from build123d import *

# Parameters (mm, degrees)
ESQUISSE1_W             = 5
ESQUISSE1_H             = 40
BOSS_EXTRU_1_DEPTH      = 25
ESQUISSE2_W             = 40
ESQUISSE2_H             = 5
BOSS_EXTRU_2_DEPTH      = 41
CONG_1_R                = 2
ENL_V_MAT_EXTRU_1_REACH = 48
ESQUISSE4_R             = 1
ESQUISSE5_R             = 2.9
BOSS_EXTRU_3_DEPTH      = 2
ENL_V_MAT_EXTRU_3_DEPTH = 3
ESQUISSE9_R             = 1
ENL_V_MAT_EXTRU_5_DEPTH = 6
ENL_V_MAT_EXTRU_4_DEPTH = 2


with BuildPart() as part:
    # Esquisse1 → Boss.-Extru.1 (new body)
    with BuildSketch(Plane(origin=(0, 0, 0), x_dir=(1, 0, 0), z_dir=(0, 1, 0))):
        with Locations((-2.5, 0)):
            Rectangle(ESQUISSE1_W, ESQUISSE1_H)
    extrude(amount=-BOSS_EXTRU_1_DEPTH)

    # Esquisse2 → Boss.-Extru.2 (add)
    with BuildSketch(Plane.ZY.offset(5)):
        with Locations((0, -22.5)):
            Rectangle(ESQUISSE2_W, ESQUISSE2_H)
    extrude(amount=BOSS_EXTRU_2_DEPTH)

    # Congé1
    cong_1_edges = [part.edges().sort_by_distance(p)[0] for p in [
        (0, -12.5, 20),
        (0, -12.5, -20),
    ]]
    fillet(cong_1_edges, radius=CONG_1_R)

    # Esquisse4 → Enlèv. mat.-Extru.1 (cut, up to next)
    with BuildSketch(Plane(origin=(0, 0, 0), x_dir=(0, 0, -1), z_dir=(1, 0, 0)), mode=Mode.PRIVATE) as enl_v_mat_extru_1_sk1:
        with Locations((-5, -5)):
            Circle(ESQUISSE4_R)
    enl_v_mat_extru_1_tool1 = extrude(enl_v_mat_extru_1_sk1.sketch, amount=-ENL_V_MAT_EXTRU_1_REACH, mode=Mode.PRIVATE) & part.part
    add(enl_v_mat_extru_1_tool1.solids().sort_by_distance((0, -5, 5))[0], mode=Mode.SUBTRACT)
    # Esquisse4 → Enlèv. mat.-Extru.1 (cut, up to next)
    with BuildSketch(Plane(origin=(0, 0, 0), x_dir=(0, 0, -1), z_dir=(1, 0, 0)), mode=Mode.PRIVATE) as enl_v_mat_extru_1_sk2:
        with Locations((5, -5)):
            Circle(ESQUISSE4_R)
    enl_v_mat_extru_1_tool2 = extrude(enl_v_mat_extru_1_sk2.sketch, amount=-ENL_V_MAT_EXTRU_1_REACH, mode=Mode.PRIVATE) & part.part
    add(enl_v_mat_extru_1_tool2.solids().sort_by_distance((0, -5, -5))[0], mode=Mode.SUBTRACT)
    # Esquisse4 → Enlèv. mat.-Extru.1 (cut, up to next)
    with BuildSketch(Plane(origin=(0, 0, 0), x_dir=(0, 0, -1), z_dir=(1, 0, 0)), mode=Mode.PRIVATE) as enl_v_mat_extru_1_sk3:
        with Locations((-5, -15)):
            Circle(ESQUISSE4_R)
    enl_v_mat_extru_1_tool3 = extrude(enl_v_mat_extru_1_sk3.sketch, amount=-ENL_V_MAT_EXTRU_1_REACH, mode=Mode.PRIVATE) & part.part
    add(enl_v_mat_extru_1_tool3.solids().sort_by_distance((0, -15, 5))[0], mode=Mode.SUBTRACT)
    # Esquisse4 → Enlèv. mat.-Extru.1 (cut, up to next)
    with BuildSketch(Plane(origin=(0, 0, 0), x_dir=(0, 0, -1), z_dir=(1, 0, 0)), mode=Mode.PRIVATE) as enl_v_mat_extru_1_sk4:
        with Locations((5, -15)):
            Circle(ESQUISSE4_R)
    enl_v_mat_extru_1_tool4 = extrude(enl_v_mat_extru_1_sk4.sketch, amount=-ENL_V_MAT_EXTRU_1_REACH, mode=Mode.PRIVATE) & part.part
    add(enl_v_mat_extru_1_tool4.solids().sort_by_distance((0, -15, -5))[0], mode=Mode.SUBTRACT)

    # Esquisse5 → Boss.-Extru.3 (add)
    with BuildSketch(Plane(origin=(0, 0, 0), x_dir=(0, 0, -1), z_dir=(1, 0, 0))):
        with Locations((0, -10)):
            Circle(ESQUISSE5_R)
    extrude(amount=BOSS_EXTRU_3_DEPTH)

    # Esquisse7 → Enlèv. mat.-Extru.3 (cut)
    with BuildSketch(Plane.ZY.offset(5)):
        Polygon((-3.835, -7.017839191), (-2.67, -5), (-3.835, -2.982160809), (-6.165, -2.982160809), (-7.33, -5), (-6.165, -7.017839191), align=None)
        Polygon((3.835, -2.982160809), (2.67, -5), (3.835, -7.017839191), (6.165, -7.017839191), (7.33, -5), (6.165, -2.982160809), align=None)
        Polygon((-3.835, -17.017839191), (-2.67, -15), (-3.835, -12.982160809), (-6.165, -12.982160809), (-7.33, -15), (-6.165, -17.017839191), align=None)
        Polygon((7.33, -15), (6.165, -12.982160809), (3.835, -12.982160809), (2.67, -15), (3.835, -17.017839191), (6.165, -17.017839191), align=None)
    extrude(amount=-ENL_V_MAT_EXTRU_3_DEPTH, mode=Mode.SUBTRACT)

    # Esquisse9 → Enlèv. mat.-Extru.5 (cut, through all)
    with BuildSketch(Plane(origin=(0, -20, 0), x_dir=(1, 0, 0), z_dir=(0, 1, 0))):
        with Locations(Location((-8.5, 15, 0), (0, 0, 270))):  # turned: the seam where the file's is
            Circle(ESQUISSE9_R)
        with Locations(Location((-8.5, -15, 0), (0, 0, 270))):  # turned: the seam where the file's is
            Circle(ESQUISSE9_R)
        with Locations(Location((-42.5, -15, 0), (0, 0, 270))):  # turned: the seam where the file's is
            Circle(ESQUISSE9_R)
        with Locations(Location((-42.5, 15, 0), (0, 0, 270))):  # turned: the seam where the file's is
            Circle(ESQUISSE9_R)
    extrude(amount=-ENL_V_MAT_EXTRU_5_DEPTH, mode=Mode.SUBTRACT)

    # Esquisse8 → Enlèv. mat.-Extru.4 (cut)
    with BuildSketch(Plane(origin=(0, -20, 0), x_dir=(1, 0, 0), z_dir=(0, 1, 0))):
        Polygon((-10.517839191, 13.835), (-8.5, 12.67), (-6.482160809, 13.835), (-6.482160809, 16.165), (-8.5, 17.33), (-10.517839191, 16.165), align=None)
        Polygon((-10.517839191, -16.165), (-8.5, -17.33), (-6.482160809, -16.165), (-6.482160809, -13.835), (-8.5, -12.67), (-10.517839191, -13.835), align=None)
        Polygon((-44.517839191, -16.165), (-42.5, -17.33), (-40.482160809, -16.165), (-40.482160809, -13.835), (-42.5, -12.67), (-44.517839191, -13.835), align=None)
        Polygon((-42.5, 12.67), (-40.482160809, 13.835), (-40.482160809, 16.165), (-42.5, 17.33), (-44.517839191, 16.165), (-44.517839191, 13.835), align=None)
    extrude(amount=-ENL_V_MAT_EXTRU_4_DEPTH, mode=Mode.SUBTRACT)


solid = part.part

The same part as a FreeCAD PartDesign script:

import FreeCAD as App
import Part
import Sketcher
Q = App.Units.Quantity


def edges_at(feature, points):
    """Names of the edges that pass closest to the given points."""
    edges = feature.Shape.Edges
    near = lambda p: min(range(len(edges)), key=lambda i: edges[i].distToShape(Part.Vertex(*p))[0])
    return sorted({f"Edge{near(p) + 1}" for p in points})

doc = App.newDocument("Part")
body = doc.addObject("PartDesign::Body", "Body")

sketch1 = body.newObject("Sketcher::SketchObject", "Sketch")
sketch1.AttachmentSupport = (doc.getObject("XZ_Plane"), [""])
sketch1.MapMode = "FlatFace"
sketch1.addGeometry([
    Part.LineSegment(App.Vector(-5, -20, 0), App.Vector(-5, 20, 0)),
    Part.LineSegment(App.Vector(-5, 20, 0), App.Vector(0, 20, 0)),
    Part.LineSegment(App.Vector(0, 20, 0), App.Vector(0, -20, 0)),
    Part.LineSegment(App.Vector(0, -20, 0), App.Vector(-5, -20, 0)),
], False)
sketch1.addConstraint([
    Sketcher.Constraint("Coincident", 0, 2, 1, 1),
    Sketcher.Constraint("Coincident", 1, 2, 2, 1),
    Sketcher.Constraint("Coincident", 2, 2, 3, 1),
    Sketcher.Constraint("Coincident", 3, 2, 0, 1),
    Sketcher.Constraint("Vertical", 0),
    Sketcher.Constraint("Horizontal", 1),
    Sketcher.Constraint("Vertical", 2),
    Sketcher.Constraint("Horizontal", 3),
    Sketcher.Constraint("Symmetric", 1, 2, 2, 2, -1, 1),
    Sketcher.Constraint("DistanceX", 1, 1, 1, 2, 5.0),
    Sketcher.Constraint("DistanceY", 0, 1, 0, 2, 40.0),
])
pad1 = body.newObject("PartDesign::Pad", "Pad")
pad1.Profile = sketch1
pad1.Length = 25

sketch2 = body.newObject("Sketcher::SketchObject", "Sketch001")
sketch2.AttachmentSupport = (doc.getObject("YZ_Plane"), [""])
sketch2.MapMode = "FlatFace"
sketch2.AttachmentOffset = App.Placement(App.Vector(0, 0, -5), App.Rotation())
sketch2.addGeometry([
    Part.LineSegment(App.Vector(-20, -20, 0), App.Vector(-25, -20, 0)),
    Part.LineSegment(App.Vector(-25, -20, 0), App.Vector(-25, 20, 0)),
    Part.LineSegment(App.Vector(-25, 20, 0), App.Vector(-20, 20, 0)),
    Part.LineSegment(App.Vector(-20, 20, 0), App.Vector(-20, -20, 0)),
], False)
sketch2.addConstraint([
    Sketcher.Constraint("Coincident", 0, 2, 1, 1),
    Sketcher.Constraint("Coincident", 1, 2, 2, 1),
    Sketcher.Constraint("Coincident", 2, 2, 3, 1),
    Sketcher.Constraint("Coincident", 3, 2, 0, 1),
    Sketcher.Constraint("Horizontal", 0),
    Sketcher.Constraint("Vertical", 1),
    Sketcher.Constraint("Horizontal", 2),
    Sketcher.Constraint("Vertical", 3),
    Sketcher.Constraint("DistanceX", 0, 2, 0, 1, 5.0),
    Sketcher.Constraint("DistanceY", 1, 1, 1, 2, 40.0),
    Sketcher.Constraint("DistanceX", 0, 2, -1, 1, 25.0),
    Sketcher.Constraint("DistanceY", 0, 2, -1, 1, 20.0),
])
pad2 = body.newObject("PartDesign::Pad", "Pad001")
pad2.Profile = sketch2
pad2.Length = 41
pad2.Reversed = True
doc.recompute()

fillet = body.newObject("PartDesign::Fillet", "Fillet")
fillet.Base = (pad2, edges_at(pad2, [(0, -12.5, 20), (0, -12.5, -20)]))
fillet.Radius = 2

sketch3 = body.newObject("Sketcher::SketchObject", "Sketch002")
sketch3.AttachmentSupport = (doc.getObject("YZ_Plane"), [""])
sketch3.MapMode = "FlatFace"
sketch3.addGeometry(Part.Circle(App.Vector(-5, 5, 0), App.Vector(0, 0, 1), 1), False)
sketch3.addConstraint([
    Sketcher.Constraint("Diameter", 0, 2.0),
    Sketcher.Constraint("DistanceX", 0, 3, -1, 1, 5.0),
    Sketcher.Constraint("DistanceY", -1, 1, 0, 3, 5.0),
])
pocket1 = body.newObject("PartDesign::Pocket", "Pocket")
pocket1.Profile = sketch3
pocket1.Type = "UpToFirst"

sketch4 = body.newObject("Sketcher::SketchObject", "Sketch003")
sketch4.AttachmentSupport = (doc.getObject("YZ_Plane"), [""])
sketch4.MapMode = "FlatFace"
sketch4.addGeometry(Part.Circle(App.Vector(-5, -5, 0), App.Vector(0, 0, 1), 1), False)
sketch4.addConstraint([
    Sketcher.Constraint("Diameter", 0, 2.0),
    Sketcher.Constraint("DistanceX", 0, 3, -1, 1, 5.0),
    Sketcher.Constraint("DistanceY", 0, 3, -1, 1, 5.0),
])
pocket2 = body.newObject("PartDesign::Pocket", "Pocket001")
pocket2.Profile = sketch4
pocket2.Type = "UpToFirst"

sketch5 = body.newObject("Sketcher::SketchObject", "Sketch004")
sketch5.AttachmentSupport = (doc.getObject("YZ_Plane"), [""])
sketch5.MapMode = "FlatFace"
sketch5.addGeometry(Part.Circle(App.Vector(-15, 5, 0), App.Vector(0, 0, 1), 1), False)
sketch5.addConstraint([
    Sketcher.Constraint("Diameter", 0, 2.0),
    Sketcher.Constraint("DistanceX", 0, 3, -1, 1, 15.0),
    Sketcher.Constraint("DistanceY", -1, 1, 0, 3, 5.0),
])
pocket3 = body.newObject("PartDesign::Pocket", "Pocket002")
pocket3.Profile = sketch5
pocket3.Type = "UpToFirst"

sketch6 = body.newObject("Sketcher::SketchObject", "Sketch005")
sketch6.AttachmentSupport = (doc.getObject("YZ_Plane"), [""])
sketch6.MapMode = "FlatFace"
sketch6.addGeometry(Part.Circle(App.Vector(-15, -5, 0), App.Vector(0, 0, 1), 1), False)
sketch6.addConstraint([
    Sketcher.Constraint("Diameter", 0, 2.0),
    Sketcher.Constraint("DistanceX", 0, 3, -1, 1, 15.0),
    Sketcher.Constraint("DistanceY", 0, 3, -1, 1, 5.0),
])
pocket4 = body.newObject("PartDesign::Pocket", "Pocket003")
pocket4.Profile = sketch6
pocket4.Type = "UpToFirst"

sketch7 = body.newObject("Sketcher::SketchObject", "Sketch006")
sketch7.AttachmentSupport = (doc.getObject("YZ_Plane"), [""])
sketch7.MapMode = "FlatFace"
sketch7.addGeometry(Part.Circle(App.Vector(-10, 0, 0), App.Vector(0, 0, 1), 2.9), False)
sketch7.addConstraint([
    Sketcher.Constraint("PointOnObject", 0, 3, -1),
    Sketcher.Constraint("Diameter", 0, 5.8),
    Sketcher.Constraint("DistanceX", 0, 3, -1, 1, 10.0),
])
pad3 = body.newObject("PartDesign::Pad", "Pad002")
pad3.Profile = sketch7
pad3.Length = 2

sketch8 = body.newObject("Sketcher::SketchObject", "Sketch007")
sketch8.AttachmentSupport = (doc.getObject("YZ_Plane"), [""])
sketch8.MapMode = "FlatFace"
sketch8.AttachmentOffset = App.Placement(App.Vector(0, 0, -5), App.Rotation())
sketch8.addGeometry([
    Part.LineSegment(App.Vector(-7, -3.8, 0), App.Vector(-5, -2.7, 0)),
    Part.LineSegment(App.Vector(-5, -2.7, 0), App.Vector(-3, -3.8, 0)),
    Part.LineSegment(App.Vector(-3, -3.8, 0), App.Vector(-3, -6.2, 0)),
    Part.LineSegment(App.Vector(-3, -6.2, 0), App.Vector(-5, -7.3, 0)),
    Part.LineSegment(App.Vector(-5, -7.3, 0), App.Vector(-7, -6.2, 0)),
    Part.LineSegment(App.Vector(-7, -6.2, 0), App.Vector(-7, -3.8, 0)),
    Part.LineSegment(App.Vector(-3, 3.8, 0), App.Vector(-5, 2.7, 0)),
    Part.LineSegment(App.Vector(-5, 2.7, 0), App.Vector(-7, 3.8, 0)),
    Part.LineSegment(App.Vector(-7, 3.8, 0), App.Vector(-7, 6.2, 0)),
    Part.LineSegment(App.Vector(-7, 6.2, 0), App.Vector(-5, 7.3, 0)),
    Part.LineSegment(App.Vector(-5, 7.3, 0), App.Vector(-3, 6.2, 0)),
    Part.LineSegment(App.Vector(-3, 6.2, 0), App.Vector(-3, 3.8, 0)),
    Part.LineSegment(App.Vector(-17, -3.8, 0), App.Vector(-15, -2.7, 0)),
    Part.LineSegment(App.Vector(-15, -2.7, 0), App.Vector(-13, -3.8, 0)),
    Part.LineSegment(App.Vector(-13, -3.8, 0), App.Vector(-13, -6.2, 0)),
    Part.LineSegment(App.Vector(-13, -6.2, 0), App.Vector(-15, -7.3, 0)),
    Part.LineSegment(App.Vector(-15, -7.3, 0), App.Vector(-17, -6.2, 0)),
    Part.LineSegment(App.Vector(-17, -6.2, 0), App.Vector(-17, -3.8, 0)),
    Part.LineSegment(App.Vector(-15, 7.3, 0), App.Vector(-13, 6.2, 0)),
    Part.LineSegment(App.Vector(-13, 6.2, 0), App.Vector(-13, 3.8, 0)),
    Part.LineSegment(App.Vector(-13, 3.8, 0), App.Vector(-15, 2.7, 0)),
    Part.LineSegment(App.Vector(-15, 2.7, 0), App.Vector(-17, 3.8, 0)),
    Part.LineSegment(App.Vector(-17, 3.8, 0), App.Vector(-17, 6.2, 0)),
    Part.LineSegment(App.Vector(-17, 6.2, 0), App.Vector(-15, 7.3, 0)),
], False)
sketch8.addConstraint([
    Sketcher.Constraint("Coincident", 0, 2, 1, 1),
    Sketcher.Constraint("Coincident", 1, 2, 2, 1),
    Sketcher.Constraint("Coincident", 2, 2, 3, 1),
    Sketcher.Constraint("Coincident", 3, 2, 4, 1),
    Sketcher.Constraint("Coincident", 4, 2, 5, 1),
    Sketcher.Constraint("Coincident", 5, 2, 0, 1),
    Sketcher.Constraint("Coincident", 6, 2, 7, 1),
    Sketcher.Constraint("Coincident", 7, 2, 8, 1),
    Sketcher.Constraint("Coincident", 8, 2, 9, 1),
    Sketcher.Constraint("Coincident", 9, 2, 10, 1),
    Sketcher.Constraint("Coincident", 10, 2, 11, 1),
    Sketcher.Constraint("Coincident", 11, 2, 6, 1),
    Sketcher.Constraint("Coincident", 12, 2, 13, 1),
    Sketcher.Constraint("Coincident", 13, 2, 14, 1),
    Sketcher.Constraint("Coincident", 14, 2, 15, 1),
    Sketcher.Constraint("Coincident", 15, 2, 16, 1),
    Sketcher.Constraint("Coincident", 16, 2, 17, 1),
    Sketcher.Constraint("Coincident", 17, 2, 12, 1),
    Sketcher.Constraint("Coincident", 18, 2, 19, 1),
    Sketcher.Constraint("Coincident", 19, 2, 20, 1),
    Sketcher.Constraint("Coincident", 20, 2, 21, 1),
    Sketcher.Constraint("Coincident", 21, 2, 22, 1),
    Sketcher.Constraint("Coincident", 22, 2, 23, 1),
    Sketcher.Constraint("Coincident", 23, 2, 18, 1),
    Sketcher.Constraint("Vertical", 2),
    Sketcher.Constraint("Vertical", 5),
    Sketcher.Constraint("Vertical", 8),
    Sketcher.Constraint("Vertical", 11),
    Sketcher.Constraint("Vertical", 14),
    Sketcher.Constraint("Vertical", 17),
    Sketcher.Constraint("Vertical", 19),
    Sketcher.Constraint("Vertical", 22),
    Sketcher.Constraint("Symmetric", 0, 2, 6, 2, -1),
    Sketcher.Constraint("Symmetric", 5, 2, 7, 2, -1),
    Sketcher.Constraint("Symmetric", 3, 2, 9, 2, -1),
    Sketcher.Constraint("Symmetric", 2, 2, 10, 2, -1),
    Sketcher.Constraint("Symmetric", 14, 2, 18, 2, -1),
    Sketcher.Constraint("Symmetric", 12, 2, 20, 2, -1),
    Sketcher.Constraint("Symmetric", 17, 2, 21, 2, -1),
    Sketcher.Constraint("Symmetric", 15, 2, 23, 2, -1),
    Sketcher.Constraint("Parallel", 0, 3),
    Sketcher.Constraint("Parallel", 1, 4),
    Sketcher.Constraint("Parallel", 3, 6),
    Sketcher.Constraint("Parallel", 4, 7),
    Sketcher.Constraint("Parallel", 6, 9),
    Sketcher.Constraint("Parallel", 9, 12),
    Sketcher.Constraint("Parallel", 10, 13),
    Sketcher.Constraint("Parallel", 12, 15),
    Sketcher.Constraint("Parallel", 13, 16),
    Sketcher.Constraint("Parallel", 15, 20),
    Sketcher.Constraint("Parallel", 20, 23),
    Sketcher.Constraint("Horizontal", 2, 2, 4, 2),
    Sketcher.Constraint("Horizontal", 1, 2, 5, 2),
    Sketcher.Constraint("Horizontal", 0, 2, 12, 2),
    Sketcher.Constraint("Horizontal", 5, 2, 13, 2),
    Sketcher.Constraint("Horizontal", 4, 2, 14, 2),
    Sketcher.Constraint("Horizontal", 3, 2, 15, 2),
    Sketcher.Constraint("Horizontal", 14, 2, 16, 2),
    Sketcher.Constraint("Angle", 0, Q("30 deg")),
    Sketcher.Constraint("DistanceX", 0, 2, -1, 1, 5.0),
    Sketcher.Constraint("DistanceX", 12, 2, -1, 1, 15.0),
    Sketcher.Constraint("DistanceY", 4, 2, 7, 2, 10.0),
    Sketcher.Constraint("DistanceY", 2, 2, 2, 1, 2.33),
    Sketcher.Constraint("Distance", 0, 2.33),
])
pocket5 = body.newObject("PartDesign::Pocket", "Pocket004")
pocket5.Profile = sketch8
pocket5.Length = 3
pocket5.Reversed = True

sketch9 = body.newObject("Sketcher::SketchObject", "Sketch008")
sketch9.AttachmentSupport = (doc.getObject("XZ_Plane"), [""])
sketch9.MapMode = "FlatFace"
sketch9.AttachmentOffset = App.Placement(App.Vector(0, 0, 20), App.Rotation())
sketch9.addGeometry([
    Part.Circle(App.Vector(-8.5, -15, 0), App.Vector(0, 0, 1), 1),
    Part.Circle(App.Vector(-8.5, 15, 0), App.Vector(0, 0, 1), 1),
    Part.Circle(App.Vector(-42.5, 15, 0), App.Vector(0, 0, 1), 1),
    Part.Circle(App.Vector(-42.5, -15, 0), App.Vector(0, 0, 1), 1),
], False)
sketch9.addConstraint([
    Sketcher.Constraint("Equal", 0, 1),
    Sketcher.Constraint("Equal", 1, 2),
    Sketcher.Constraint("Equal", 2, 3),
    Sketcher.Constraint("Symmetric", 0, 3, 1, 3, -1),
    Sketcher.Constraint("Symmetric", 2, 3, 3, 3, -1),
    Sketcher.Constraint("Horizontal", 1, 3, 2, 3),
    Sketcher.Constraint("Diameter", 0, 2.0),
    Sketcher.Constraint("DistanceY", 0, 3, -1, 1, 15.0),
    Sketcher.Constraint("DistanceX", 2, 3, 1, 3, 34.0),
    Sketcher.Constraint("DistanceX", 0, 3, -1, 1, 8.5),
])
pocket6 = body.newObject("PartDesign::Pocket", "Pocket005")
pocket6.Profile = sketch9
pocket6.Type = "ThroughAll"
pocket6.Reversed = True

sketch10 = body.newObject("Sketcher::SketchObject", "Sketch009")
sketch10.AttachmentSupport = (doc.getObject("XZ_Plane"), [""])
sketch10.MapMode = "FlatFace"
sketch10.AttachmentOffset = App.Placement(App.Vector(0, 0, 20), App.Rotation())
sketch10.addGeometry([
    Part.LineSegment(App.Vector(-10.5, -13.8, 0), App.Vector(-8.5, -12.7, 0)),
    Part.LineSegment(App.Vector(-8.5, -12.7, 0), App.Vector(-6.5, -13.8, 0)),
    Part.LineSegment(App.Vector(-6.5, -13.8, 0), App.Vector(-6.5, -16.2, 0)),
    Part.LineSegment(App.Vector(-6.5, -16.2, 0), App.Vector(-8.5, -17.3, 0)),
    Part.LineSegment(App.Vector(-8.5, -17.3, 0), App.Vector(-10.5, -16.2, 0)),
    Part.LineSegment(App.Vector(-10.5, -16.2, 0), App.Vector(-10.5, -13.8, 0)),
    Part.LineSegment(App.Vector(-10.5, 16.2, 0), App.Vector(-8.5, 17.3, 0)),
    Part.LineSegment(App.Vector(-8.5, 17.3, 0), App.Vector(-6.5, 16.2, 0)),
    Part.LineSegment(App.Vector(-6.5, 16.2, 0), App.Vector(-6.5, 13.8, 0)),
    Part.LineSegment(App.Vector(-6.5, 13.8, 0), App.Vector(-8.5, 12.7, 0)),
    Part.LineSegment(App.Vector(-8.5, 12.7, 0), App.Vector(-10.5, 13.8, 0)),
    Part.LineSegment(App.Vector(-10.5, 13.8, 0), App.Vector(-10.5, 16.2, 0)),
    Part.LineSegment(App.Vector(-44.5, 16.2, 0), App.Vector(-42.5, 17.3, 0)),
    Part.LineSegment(App.Vector(-42.5, 17.3, 0), App.Vector(-40.5, 16.2, 0)),
    Part.LineSegment(App.Vector(-40.5, 16.2, 0), App.Vector(-40.5, 13.8, 0)),
    Part.LineSegment(App.Vector(-40.5, 13.8, 0), App.Vector(-42.5, 12.7, 0)),
    Part.LineSegment(App.Vector(-42.5, 12.7, 0), App.Vector(-44.5, 13.8, 0)),
    Part.LineSegment(App.Vector(-44.5, 13.8, 0), App.Vector(-44.5, 16.2, 0)),
    Part.LineSegment(App.Vector(-42.5, -12.7, 0), App.Vector(-40.5, -13.8, 0)),
    Part.LineSegment(App.Vector(-40.5, -13.8, 0), App.Vector(-40.5, -16.2, 0)),
    Part.LineSegment(App.Vector(-40.5, -16.2, 0), App.Vector(-42.5, -17.3, 0)),
    Part.LineSegment(App.Vector(-42.5, -17.3, 0), App.Vector(-44.5, -16.2, 0)),
    Part.LineSegment(App.Vector(-44.5, -16.2, 0), App.Vector(-44.5, -13.8, 0)),
    Part.LineSegment(App.Vector(-44.5, -13.8, 0), App.Vector(-42.5, -12.7, 0)),
], False)
sketch10.addConstraint([
    Sketcher.Constraint("Coincident", 0, 2, 1, 1),
    Sketcher.Constraint("Coincident", 1, 2, 2, 1),
    Sketcher.Constraint("Coincident", 2, 2, 3, 1),
    Sketcher.Constraint("Coincident", 3, 2, 4, 1),
    Sketcher.Constraint("Coincident", 4, 2, 5, 1),
    Sketcher.Constraint("Coincident", 5, 2, 0, 1),
    Sketcher.Constraint("Coincident", 6, 2, 7, 1),
    Sketcher.Constraint("Coincident", 7, 2, 8, 1),
    Sketcher.Constraint("Coincident", 8, 2, 9, 1),
    Sketcher.Constraint("Coincident", 9, 2, 10, 1),
    Sketcher.Constraint("Coincident", 10, 2, 11, 1),
    Sketcher.Constraint("Coincident", 11, 2, 6, 1),
    Sketcher.Constraint("Coincident", 12, 2, 13, 1),
    Sketcher.Constraint("Coincident", 13, 2, 14, 1),
    Sketcher.Constraint("Coincident", 14, 2, 15, 1),
    Sketcher.Constraint("Coincident", 15, 2, 16, 1),
    Sketcher.Constraint("Coincident", 16, 2, 17, 1),
    Sketcher.Constraint("Coincident", 17, 2, 12, 1),
    Sketcher.Constraint("Coincident", 18, 2, 19, 1),
    Sketcher.Constraint("Coincident", 19, 2, 20, 1),
    Sketcher.Constraint("Coincident", 20, 2, 21, 1),
    Sketcher.Constraint("Coincident", 21, 2, 22, 1),
    Sketcher.Constraint("Coincident", 22, 2, 23, 1),
    Sketcher.Constraint("Coincident", 23, 2, 18, 1),
    Sketcher.Constraint("Vertical", 2),
    Sketcher.Constraint("Vertical", 5),
    Sketcher.Constraint("Vertical", 8),
    Sketcher.Constraint("Vertical", 11),
    Sketcher.Constraint("Vertical", 14),
    Sketcher.Constraint("Vertical", 17),
    Sketcher.Constraint("Vertical", 19),
    Sketcher.Constraint("Vertical", 22),
    Sketcher.Constraint("Symmetric", 3, 2, 6, 2, -1),
    Sketcher.Constraint("Symmetric", 2, 2, 7, 2, -1),
    Sketcher.Constraint("Symmetric", 0, 2, 9, 2, -1),
    Sketcher.Constraint("Symmetric", 5, 2, 10, 2, -1),
    Sketcher.Constraint("Symmetric", 14, 2, 18, 2, -1),
    Sketcher.Constraint("Symmetric", 12, 2, 20, 2, -1),
    Sketcher.Constraint("Symmetric", 17, 2, 21, 2, -1),
    Sketcher.Constraint("Symmetric", 15, 2, 23, 2, -1),
    Sketcher.Constraint("Parallel", 0, 3),
    Sketcher.Constraint("Parallel", 1, 4),
    Sketcher.Constraint("Parallel", 3, 6),
    Sketcher.Constraint("Parallel", 4, 7),
    Sketcher.Constraint("Parallel", 6, 9),
    Sketcher.Constraint("Parallel", 9, 12),
    Sketcher.Constraint("Parallel", 10, 13),
    Sketcher.Constraint("Parallel", 12, 15),
    Sketcher.Constraint("Parallel", 13, 16),
    Sketcher.Constraint("Parallel", 15, 20),
    Sketcher.Constraint("Parallel", 20, 23),
    Sketcher.Constraint("Horizontal", 2, 2, 4, 2),
    Sketcher.Constraint("Horizontal", 1, 2, 5, 2),
    Sketcher.Constraint("Horizontal", 6, 2, 12, 2),
    Sketcher.Constraint("Horizontal", 11, 2, 13, 2),
    Sketcher.Constraint("Horizontal", 10, 2, 14, 2),
    Sketcher.Constraint("Horizontal", 9, 2, 15, 2),
    Sketcher.Constraint("Horizontal", 14, 2, 16, 2),
    Sketcher.Constraint("Angle", 0, Q("30 deg")),
    Sketcher.Constraint("DistanceY", 0, 2, 6, 2, 30.0),
    Sketcher.Constraint("DistanceX", 12, 2, 6, 2, 34.0),
    Sketcher.Constraint("DistanceY", 2, 2, 2, 1, 2.33),
    Sketcher.Constraint("DistanceX", 0, 2, -1, 1, 8.5),
    Sketcher.Constraint("Distance", 0, 2.33),
])
pocket7 = body.newObject("PartDesign::Pocket", "Pocket006")
pocket7.Profile = sketch10
pocket7.Length = 2
pocket7.Reversed = True

doc.recompute()
